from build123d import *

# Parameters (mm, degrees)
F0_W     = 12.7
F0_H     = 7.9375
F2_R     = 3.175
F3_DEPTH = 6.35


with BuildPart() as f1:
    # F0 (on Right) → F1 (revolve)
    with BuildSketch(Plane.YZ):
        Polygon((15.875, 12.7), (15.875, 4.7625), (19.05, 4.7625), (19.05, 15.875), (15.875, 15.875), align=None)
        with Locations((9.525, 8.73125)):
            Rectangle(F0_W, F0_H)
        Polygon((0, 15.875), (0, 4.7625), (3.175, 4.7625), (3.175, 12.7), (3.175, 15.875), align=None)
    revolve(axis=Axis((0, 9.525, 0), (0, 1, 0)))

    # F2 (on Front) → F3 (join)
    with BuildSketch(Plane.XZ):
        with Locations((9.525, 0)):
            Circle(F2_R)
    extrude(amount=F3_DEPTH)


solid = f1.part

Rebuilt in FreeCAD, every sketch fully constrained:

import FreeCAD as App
import Part
import Sketcher

V = App.Vector
Q = App.Units.Quantity

doc = App.newDocument("Part")
body = doc.addObject("PartDesign::Body", "Body")

sketch1 = doc.addObject("Sketcher::SketchObject", "Sketch")
body.addObject(sketch1)
sketch1.AttachmentSupport = (doc.YZ_Plane, [""])
sketch1.MapMode = "FlatFace"
sketch1.addGeometry([
    Part.LineSegment(V(19.05, 4.7625, 0), V(19.05, 15.875, 0)),
    Part.LineSegment(V(19.05, 15.875, 0), V(15.875, 15.875, 0)),
    Part.LineSegment(V(15.875, 15.875, 0), V(15.875, 12.7, 0)),
    Part.LineSegment(V(15.875, 12.7, 0), V(3.175, 12.7, 0)),
    Part.LineSegment(V(3.175, 12.7, 0), V(3.175, 15.875, 0)),
    Part.LineSegment(V(3.175, 15.875, 0), V(0, 15.875, 0)),
    Part.LineSegment(V(0, 15.875, 0), V(0, 4.7625, 0)),
    Part.LineSegment(V(0, 4.7625, 0), V(19.05, 4.7625, 0)),
], False)
sketch1.addConstraint([
    Sketcher.Constraint("Coincident", 0, 2, 1, 1),
    Sketcher.Constraint("Coincident", 1, 2, 2, 1),
    Sketcher.Constraint("Coincident", 2, 2, 3, 1),
    Sketcher.Constraint("Coincident", 3, 2, 4, 1),
    Sketcher.Constraint("Coincident", 4, 2, 5, 1),
    Sketcher.Constraint("Coincident", 5, 2, 6, 1),
    Sketcher.Constraint("Coincident", 6, 2, 7, 1),
    Sketcher.Constraint("Coincident", 7, 2, 0, 1),
    Sketcher.Constraint("Vertical", 0),
    Sketcher.Constraint("Horizontal", 1),
    Sketcher.Constraint("Vertical", 2),
    Sketcher.Constraint("Horizontal", 3),
    Sketcher.Constraint("Vertical", 4),
    Sketcher.Constraint("Horizontal", 5),
    Sketcher.Constraint("Vertical", 6),
    Sketcher.Constraint("Horizontal", 7),
    Sketcher.Constraint("PointOnObject", 5, 2, -2),
    Sketcher.Constraint("Horizontal", 1, 2, 4, 2),
    Sketcher.Constraint("Equal", 1, 5),
    Sketcher.Constraint("Equal", 5, 2),
    Sketcher.Constraint("DistanceX", 3, 2, 3, 1, Q("0.5 in")),
    Sketcher.Constraint("DistanceX", 7, 1, 7, 2, Q("0.75 in")),
    Sketcher.Constraint("DistanceY", -1, 1, 2, 2, Q("0.5 in")),
    Sketcher.Constraint("DistanceY", 0, 1, 0, 2, Q("0.4375 in")),
])
revolution = doc.addObject("PartDesign::Revolution", "Revolution")
body.addObject(revolution)
revolution.Profile = sketch1
revolution.ReferenceAxis = (sketch1, ["H_Axis"])
revolution.Angle = 360

sketch2 = doc.addObject("Sketcher::SketchObject", "Sketch001")
body.addObject(sketch2)
sketch2.AttachmentSupport = (doc.XZ_Plane, [""])
sketch2.MapMode = "FlatFace"
sketch2.addGeometry(Part.Circle(V(9.525, 0, 0), V(0, 0, 1), 3.175), False)
sketch2.addConstraint([
    Sketcher.Constraint("PointOnObject", 0, 3, -1),
    Sketcher.Constraint("Diameter", 0, Q("0.25 in")),
    Sketcher.Constraint("DistanceX", -1, 1, 0, 3, Q("0.375 in")),
])
pad1 = doc.addObject("PartDesign::Pad", "Pad")
body.addObject(pad1)
pad1.Profile = sketch2
pad1.Length = Q("0.25 in")

doc.recompute()
